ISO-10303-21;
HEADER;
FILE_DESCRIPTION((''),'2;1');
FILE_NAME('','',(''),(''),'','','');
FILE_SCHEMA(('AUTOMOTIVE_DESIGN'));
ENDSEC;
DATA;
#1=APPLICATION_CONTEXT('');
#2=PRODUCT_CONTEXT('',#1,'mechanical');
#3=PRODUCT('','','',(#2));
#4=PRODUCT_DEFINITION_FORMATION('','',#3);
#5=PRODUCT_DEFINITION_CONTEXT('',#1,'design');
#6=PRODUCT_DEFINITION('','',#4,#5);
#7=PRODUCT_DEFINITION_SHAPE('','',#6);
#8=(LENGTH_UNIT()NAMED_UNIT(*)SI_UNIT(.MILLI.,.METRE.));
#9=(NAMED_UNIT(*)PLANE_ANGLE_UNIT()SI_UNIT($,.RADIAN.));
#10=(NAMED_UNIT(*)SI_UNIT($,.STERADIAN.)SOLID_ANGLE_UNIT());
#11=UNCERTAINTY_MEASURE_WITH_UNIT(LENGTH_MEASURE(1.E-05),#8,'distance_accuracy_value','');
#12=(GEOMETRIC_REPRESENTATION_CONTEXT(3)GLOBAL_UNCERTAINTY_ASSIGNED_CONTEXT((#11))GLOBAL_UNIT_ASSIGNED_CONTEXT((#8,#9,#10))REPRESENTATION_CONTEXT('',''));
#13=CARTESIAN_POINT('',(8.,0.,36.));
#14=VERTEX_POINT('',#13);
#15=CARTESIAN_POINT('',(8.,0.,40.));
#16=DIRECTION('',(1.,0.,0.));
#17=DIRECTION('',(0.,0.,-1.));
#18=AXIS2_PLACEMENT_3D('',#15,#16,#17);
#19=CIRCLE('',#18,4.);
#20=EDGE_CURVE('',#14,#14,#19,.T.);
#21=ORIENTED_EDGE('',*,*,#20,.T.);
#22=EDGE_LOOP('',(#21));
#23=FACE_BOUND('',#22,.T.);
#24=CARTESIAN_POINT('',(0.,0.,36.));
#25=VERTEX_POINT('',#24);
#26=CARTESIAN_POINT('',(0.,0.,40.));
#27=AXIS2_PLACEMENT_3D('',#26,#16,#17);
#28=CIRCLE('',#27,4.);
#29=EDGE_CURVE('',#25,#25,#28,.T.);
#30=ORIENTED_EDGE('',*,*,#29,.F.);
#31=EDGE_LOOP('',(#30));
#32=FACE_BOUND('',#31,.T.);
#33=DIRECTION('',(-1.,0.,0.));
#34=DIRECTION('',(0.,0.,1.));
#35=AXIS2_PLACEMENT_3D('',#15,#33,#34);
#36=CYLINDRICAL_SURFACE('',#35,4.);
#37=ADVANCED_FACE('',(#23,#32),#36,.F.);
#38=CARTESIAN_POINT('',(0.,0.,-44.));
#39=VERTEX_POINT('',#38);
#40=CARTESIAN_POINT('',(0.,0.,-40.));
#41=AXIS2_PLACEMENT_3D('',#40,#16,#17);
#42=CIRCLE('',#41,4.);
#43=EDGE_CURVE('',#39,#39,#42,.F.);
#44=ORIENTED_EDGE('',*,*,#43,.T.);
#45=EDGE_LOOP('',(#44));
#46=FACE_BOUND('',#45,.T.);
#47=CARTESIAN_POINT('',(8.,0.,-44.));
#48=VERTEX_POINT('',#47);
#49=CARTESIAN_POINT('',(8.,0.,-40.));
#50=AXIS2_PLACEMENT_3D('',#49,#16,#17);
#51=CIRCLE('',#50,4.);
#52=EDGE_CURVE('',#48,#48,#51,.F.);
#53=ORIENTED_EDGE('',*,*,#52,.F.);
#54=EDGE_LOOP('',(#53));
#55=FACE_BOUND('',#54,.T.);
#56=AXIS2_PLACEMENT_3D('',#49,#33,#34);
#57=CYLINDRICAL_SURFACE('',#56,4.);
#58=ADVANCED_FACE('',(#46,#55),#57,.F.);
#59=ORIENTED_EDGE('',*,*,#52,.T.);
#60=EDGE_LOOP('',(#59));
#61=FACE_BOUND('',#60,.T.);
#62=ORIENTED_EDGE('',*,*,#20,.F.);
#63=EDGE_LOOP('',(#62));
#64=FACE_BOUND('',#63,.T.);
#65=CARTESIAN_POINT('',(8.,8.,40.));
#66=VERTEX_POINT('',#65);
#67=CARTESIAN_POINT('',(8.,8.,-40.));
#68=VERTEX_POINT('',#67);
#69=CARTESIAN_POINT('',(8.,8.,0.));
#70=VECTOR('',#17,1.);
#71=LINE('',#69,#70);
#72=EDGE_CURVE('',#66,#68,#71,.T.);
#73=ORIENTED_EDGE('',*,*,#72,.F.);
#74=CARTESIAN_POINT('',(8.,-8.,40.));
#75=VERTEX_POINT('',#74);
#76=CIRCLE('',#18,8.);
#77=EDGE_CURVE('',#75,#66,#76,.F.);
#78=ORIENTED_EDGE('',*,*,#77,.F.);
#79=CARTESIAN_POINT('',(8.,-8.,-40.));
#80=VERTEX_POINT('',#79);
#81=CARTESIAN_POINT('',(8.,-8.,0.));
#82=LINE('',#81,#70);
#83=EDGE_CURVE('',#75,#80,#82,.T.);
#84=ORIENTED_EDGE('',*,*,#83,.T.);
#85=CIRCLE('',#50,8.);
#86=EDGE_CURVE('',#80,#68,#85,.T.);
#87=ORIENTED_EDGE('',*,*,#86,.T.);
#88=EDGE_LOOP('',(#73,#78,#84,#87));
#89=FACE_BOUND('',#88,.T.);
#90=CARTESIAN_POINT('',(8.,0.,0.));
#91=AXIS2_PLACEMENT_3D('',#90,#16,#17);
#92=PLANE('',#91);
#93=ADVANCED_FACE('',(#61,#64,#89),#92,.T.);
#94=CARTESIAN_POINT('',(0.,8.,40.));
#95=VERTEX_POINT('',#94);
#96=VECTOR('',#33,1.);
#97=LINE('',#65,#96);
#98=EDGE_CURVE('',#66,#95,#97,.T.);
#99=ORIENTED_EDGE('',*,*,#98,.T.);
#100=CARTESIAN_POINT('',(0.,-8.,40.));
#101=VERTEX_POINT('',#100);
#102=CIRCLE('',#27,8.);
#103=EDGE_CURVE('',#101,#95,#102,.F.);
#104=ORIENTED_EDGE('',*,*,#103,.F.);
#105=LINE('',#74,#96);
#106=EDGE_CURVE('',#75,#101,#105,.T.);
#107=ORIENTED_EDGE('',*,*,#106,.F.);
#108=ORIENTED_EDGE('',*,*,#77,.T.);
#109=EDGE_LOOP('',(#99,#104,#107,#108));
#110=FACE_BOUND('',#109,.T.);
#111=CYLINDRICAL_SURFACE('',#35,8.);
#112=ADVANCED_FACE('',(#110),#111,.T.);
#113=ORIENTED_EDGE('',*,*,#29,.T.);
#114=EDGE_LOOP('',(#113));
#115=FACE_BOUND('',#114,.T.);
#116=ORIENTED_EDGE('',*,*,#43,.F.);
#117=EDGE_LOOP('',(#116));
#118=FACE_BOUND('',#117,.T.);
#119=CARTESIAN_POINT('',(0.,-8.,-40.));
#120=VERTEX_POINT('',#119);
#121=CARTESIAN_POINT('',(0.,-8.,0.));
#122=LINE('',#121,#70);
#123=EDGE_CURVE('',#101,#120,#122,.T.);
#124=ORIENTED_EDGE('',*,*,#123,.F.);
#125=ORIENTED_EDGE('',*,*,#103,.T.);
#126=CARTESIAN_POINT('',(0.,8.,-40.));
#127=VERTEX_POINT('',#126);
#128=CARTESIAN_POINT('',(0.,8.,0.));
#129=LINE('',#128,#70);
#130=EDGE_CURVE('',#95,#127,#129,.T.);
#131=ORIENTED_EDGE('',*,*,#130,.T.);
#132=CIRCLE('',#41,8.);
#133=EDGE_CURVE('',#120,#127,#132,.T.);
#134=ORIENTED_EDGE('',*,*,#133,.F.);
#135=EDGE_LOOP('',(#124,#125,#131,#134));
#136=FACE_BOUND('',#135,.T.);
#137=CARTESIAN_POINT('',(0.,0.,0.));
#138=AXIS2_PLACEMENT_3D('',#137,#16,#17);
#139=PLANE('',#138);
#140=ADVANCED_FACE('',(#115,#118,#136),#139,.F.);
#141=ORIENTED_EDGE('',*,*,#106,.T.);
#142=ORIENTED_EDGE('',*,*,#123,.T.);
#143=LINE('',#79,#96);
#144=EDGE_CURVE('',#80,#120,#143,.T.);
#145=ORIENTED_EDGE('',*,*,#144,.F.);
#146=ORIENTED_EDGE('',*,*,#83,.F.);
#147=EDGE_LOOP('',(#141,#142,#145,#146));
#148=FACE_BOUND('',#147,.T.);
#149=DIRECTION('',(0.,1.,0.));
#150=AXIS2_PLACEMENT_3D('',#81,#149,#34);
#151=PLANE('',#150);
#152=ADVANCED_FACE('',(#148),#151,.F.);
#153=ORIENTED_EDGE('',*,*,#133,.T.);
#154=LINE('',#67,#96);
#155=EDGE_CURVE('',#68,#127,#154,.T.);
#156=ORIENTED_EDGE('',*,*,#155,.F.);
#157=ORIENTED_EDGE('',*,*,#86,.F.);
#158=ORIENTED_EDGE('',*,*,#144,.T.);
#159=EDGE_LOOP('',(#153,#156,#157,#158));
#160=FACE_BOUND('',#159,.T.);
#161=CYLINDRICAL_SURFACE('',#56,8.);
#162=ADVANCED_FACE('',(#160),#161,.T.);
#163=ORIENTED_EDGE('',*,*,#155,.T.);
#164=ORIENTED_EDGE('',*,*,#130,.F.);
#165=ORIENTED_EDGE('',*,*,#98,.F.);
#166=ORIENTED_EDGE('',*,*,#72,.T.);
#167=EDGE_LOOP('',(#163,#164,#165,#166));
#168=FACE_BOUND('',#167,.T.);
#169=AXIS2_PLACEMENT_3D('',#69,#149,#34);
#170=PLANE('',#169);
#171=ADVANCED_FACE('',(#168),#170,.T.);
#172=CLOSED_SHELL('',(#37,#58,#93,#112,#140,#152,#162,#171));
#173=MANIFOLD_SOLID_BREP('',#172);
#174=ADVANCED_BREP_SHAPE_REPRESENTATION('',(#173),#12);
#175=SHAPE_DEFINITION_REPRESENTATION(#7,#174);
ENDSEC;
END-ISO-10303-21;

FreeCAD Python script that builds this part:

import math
import FreeCAD as App
import Part
import Sketcher
from FreeCAD import Vector

doc = App.newDocument("Part")
params = doc.addObject("Spreadsheet::Sheet", "Params")
for row, (alias, value) in enumerate([
    ("sketch1_diameter", "8 mm"),
    ("sketch1_radius", "8 mm"),
    ("sketch1_height", "80 mm"),
    ("pad1_length", "8 mm"),
], start=1):
    params.set(f"A{row}", alias)
    params.set(f"B{row}", "=" + value)
    params.setAlias(f"B{row}", alias)

body = doc.addObject("PartDesign::Body", "Body")

# Sketch on YZ plane
sketch1 = body.newObject("Sketcher::SketchObject", "Sketch")
sketch1.AttachmentSupport = (doc.getObject("YZ_Plane"), [""])
sketch1.MapMode = "FlatFace"
sketch1.addGeometry(Part.LineSegment(Vector(8, -40, 0), Vector(8, 40, 0)), False)
sketch1.addGeometry(Part.ArcOfCircle(Part.Circle(Vector(0, 40, 0), Vector(0, 0, 1), 8), math.radians(0), math.radians(180)), False)
sketch1.addGeometry(Part.LineSegment(Vector(-8, 40, 0), Vector(-8, -40, 0)), False)
sketch1.addGeometry(Part.ArcOfCircle(Part.Circle(Vector(0, -40, 0), Vector(0, 0, 1), 8), math.radians(180), math.radians(360)), False)
sketch1.addGeometry(Part.Circle(Vector(0, -40, 0), Vector(0, 0, 1), 4), False)
sketch1.addGeometry(Part.Circle(Vector(0, 40, 0), Vector(0, 0, 1), 4), False)
sketch1.addConstraint(Sketcher.Constraint("Tangent", 0, 2, 1, 1))
sketch1.addConstraint(Sketcher.Constraint("Tangent", 1, 2, 2, 1))
sketch1.addConstraint(Sketcher.Constraint("Tangent", 2, 2, 3, 1))
sketch1.addConstraint(Sketcher.Constraint("Tangent", 3, 2, 0, 1))
sketch1.addConstraint(Sketcher.Constraint("Vertical", 0))
sketch1.addConstraint(Sketcher.Constraint("Vertical", 2))
sketch1.addConstraint(Sketcher.Constraint("Coincident", 4, 3, 3, 3))
sketch1.addConstraint(Sketcher.Constraint("Coincident", 5, 3, 1, 3))
sketch1.addConstraint(Sketcher.Constraint("Equal", 4, 5))
sketch1.addConstraint(Sketcher.Constraint("Symmetric", 1, 3, 3, 3, -1, 1))
sketch1.addConstraint(Sketcher.Constraint("Diameter", 4, 8.0))
sketch1.addConstraint(Sketcher.Constraint("Radius", 1, 8.0))
sketch1.addConstraint(Sketcher.Constraint("DistanceY", 0, 1, 0, 2, 80.0))
sketch1.setExpression("Constraints[10]", "Params.sketch1_diameter")
sketch1.setExpression("Constraints[11]", "Params.sketch1_radius")
sketch1.setExpression("Constraints[12]", "Params.sketch1_height")
pad1 = body.newObject("PartDesign::Pad", "Pad")
pad1.Profile = sketch1
pad1.setExpression("Length", "Params.pad1_length")

doc.recompute()
